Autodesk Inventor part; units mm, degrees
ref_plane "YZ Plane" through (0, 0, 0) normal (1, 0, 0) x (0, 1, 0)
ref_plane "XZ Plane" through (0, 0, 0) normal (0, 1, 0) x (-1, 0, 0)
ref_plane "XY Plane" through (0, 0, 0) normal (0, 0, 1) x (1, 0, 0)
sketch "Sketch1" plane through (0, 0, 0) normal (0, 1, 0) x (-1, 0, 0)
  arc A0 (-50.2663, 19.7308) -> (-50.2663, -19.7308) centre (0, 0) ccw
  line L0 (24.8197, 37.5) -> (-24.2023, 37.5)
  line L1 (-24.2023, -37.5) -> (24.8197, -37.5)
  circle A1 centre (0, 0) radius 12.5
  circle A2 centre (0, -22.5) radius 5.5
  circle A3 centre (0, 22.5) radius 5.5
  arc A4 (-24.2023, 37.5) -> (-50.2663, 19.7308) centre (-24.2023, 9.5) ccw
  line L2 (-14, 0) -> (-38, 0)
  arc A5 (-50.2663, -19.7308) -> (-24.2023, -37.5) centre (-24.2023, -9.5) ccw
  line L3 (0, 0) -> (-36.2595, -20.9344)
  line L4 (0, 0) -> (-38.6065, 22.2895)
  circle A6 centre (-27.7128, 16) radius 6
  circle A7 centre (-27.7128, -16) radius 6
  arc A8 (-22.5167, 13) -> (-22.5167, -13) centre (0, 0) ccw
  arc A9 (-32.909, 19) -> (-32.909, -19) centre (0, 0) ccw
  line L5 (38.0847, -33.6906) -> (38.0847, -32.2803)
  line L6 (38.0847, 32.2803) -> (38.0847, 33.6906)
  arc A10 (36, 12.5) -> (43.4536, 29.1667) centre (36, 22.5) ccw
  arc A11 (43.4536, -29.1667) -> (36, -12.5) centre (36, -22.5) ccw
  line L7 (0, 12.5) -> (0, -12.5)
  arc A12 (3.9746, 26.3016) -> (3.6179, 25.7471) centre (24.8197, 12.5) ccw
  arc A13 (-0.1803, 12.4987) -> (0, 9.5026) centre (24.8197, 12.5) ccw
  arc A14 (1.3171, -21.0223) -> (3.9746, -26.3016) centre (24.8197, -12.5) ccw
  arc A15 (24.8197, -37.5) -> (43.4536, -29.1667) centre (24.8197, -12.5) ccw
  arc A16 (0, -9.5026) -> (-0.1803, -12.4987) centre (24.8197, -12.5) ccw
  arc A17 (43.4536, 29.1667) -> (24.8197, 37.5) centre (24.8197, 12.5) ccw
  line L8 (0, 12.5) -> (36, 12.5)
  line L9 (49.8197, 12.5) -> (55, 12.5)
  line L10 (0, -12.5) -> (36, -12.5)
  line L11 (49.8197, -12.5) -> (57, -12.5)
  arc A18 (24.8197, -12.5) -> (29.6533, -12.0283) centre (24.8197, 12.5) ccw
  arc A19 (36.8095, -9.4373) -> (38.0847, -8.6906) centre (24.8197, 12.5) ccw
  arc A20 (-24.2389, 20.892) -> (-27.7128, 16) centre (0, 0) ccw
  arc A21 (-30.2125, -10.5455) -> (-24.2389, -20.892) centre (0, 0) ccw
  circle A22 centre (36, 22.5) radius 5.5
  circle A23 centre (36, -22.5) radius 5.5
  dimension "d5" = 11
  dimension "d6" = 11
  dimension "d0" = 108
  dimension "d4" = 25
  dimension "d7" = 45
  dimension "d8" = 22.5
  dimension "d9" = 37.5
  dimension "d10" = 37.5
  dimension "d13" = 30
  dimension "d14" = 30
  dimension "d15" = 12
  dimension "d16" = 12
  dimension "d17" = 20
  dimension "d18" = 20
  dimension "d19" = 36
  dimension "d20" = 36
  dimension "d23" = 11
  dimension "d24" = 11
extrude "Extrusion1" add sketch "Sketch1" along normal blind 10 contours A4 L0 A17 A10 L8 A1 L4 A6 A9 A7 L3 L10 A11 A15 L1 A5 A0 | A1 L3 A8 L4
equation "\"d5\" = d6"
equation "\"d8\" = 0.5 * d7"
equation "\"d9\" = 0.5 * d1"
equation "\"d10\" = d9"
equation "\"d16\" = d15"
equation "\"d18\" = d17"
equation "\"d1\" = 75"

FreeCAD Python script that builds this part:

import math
import FreeCAD as App
import Part
import Sketcher
Q = App.Units.Quantity

doc = App.newDocument("Part")
params = doc.addObject("Spreadsheet::Sheet", "Params")
for row, (alias, value) in enumerate([
    ("sketch1_diameter", "11 mm"),
    ("sketch1_radius", "54 mm"),
    ("sketch1_radius2", "25 mm"),
    ("sketch1_radius3", "10 mm"),
    ("sketch1_radius4", "6 mm"),
    ("pad1_length", "10 mm"),
], start=1):
    params.set(f"A{row}", alias)
    params.set(f"B{row}", "=" + value)
    params.setAlias(f"B{row}", alias)

body = doc.addObject("PartDesign::Body", "Body")

# Sketch on XZ plane
sketch1 = body.newObject("Sketcher::SketchObject", "Sketch")
sketch1.AttachmentSupport = (doc.getObject("XZ_Plane"), [""])
sketch1.MapMode = "FlatFace"
sketch1.addGeometry(Part.ArcOfCircle(Part.Circle(App.Vector(24.2023, 9.5, 0), App.Vector(0, 0, 1), 28), math.radians(21.431303), math.radians(90)), False)
sketch1.addGeometry(Part.ArcOfCircle(Part.Circle(App.Vector(0, 0, 0), App.Vector(0, 0, 1), 54.00005), math.radians(-21.431269), math.radians(21.431269)), False)
sketch1.addGeometry(Part.ArcOfCircle(Part.Circle(App.Vector(24.2023, -9.5, 0), App.Vector(0, 0, 1), 28.000024), math.radians(-90), math.radians(-21.431303)), False)
sketch1.addGeometry(Part.LineSegment(App.Vector(24.2023, -37.5, 0), App.Vector(-24.8197, -37.5, 0)), False)
sketch1.addGeometry(Part.ArcOfCircle(Part.Circle(App.Vector(-24.8197, -12.5, 0), App.Vector(0, 0, 1), 25.000038), math.radians(-138.189628), math.radians(-90)), False)
sketch1.addGeometry(Part.ArcOfCircle(Part.Circle(App.Vector(-36, -22.5, 0), App.Vector(0, 0, 1), 10.000052), math.radians(90), math.radians(221.810304)), False)
sketch1.addGeometry(Part.LineSegment(App.Vector(-36, -12.5, 0), App.Vector(0, -12.5, 0)), False)
sketch1.addGeometry(Part.ArcOfCircle(Part.Circle(App.Vector(0, 0, 0), App.Vector(0, 0, 1), 12.5), math.radians(-90), math.radians(90)), False)
sketch1.addGeometry(Part.LineSegment(App.Vector(0, 12.5, 0), App.Vector(-36, 12.5, 0)), False)
sketch1.addGeometry(Part.ArcOfCircle(Part.Circle(App.Vector(-36, 22.5, 0), App.Vector(0, 0, 1), 10), math.radians(138.189696), math.radians(270)), False)
sketch1.addGeometry(Part.ArcOfCircle(Part.Circle(App.Vector(-24.8197, 12.5, 0), App.Vector(0, 0, 1), 25), math.radians(90), math.radians(138.189628)), False)
sketch1.addGeometry(Part.LineSegment(App.Vector(-24.8197, 37.5, 0), App.Vector(24.2023, 37.5, 0)), False)
sketch1.addGeometry(Part.ArcOfCircle(Part.Circle(App.Vector(0, 0, 0), App.Vector(0, 0, 1), 26.000034), math.radians(-29.999956), math.radians(29.999956)), False)
sketch1.addGeometry(Part.ArcOfCircle(Part.Circle(App.Vector(27.7128, -16, 0), App.Vector(0, 0, 1), 6), math.radians(149.99975), math.radians(330.000227)), False)
sketch1.addGeometry(Part.ArcOfCircle(Part.Circle(App.Vector(0, 0, 0), App.Vector(0, 0, 1), 38.00003), math.radians(-29.999974), math.radians(29.999974)), False)
sketch1.addGeometry(Part.ArcOfCircle(Part.Circle(App.Vector(27.7128, 16, 0), App.Vector(0, 0, 1), 6), math.radians(29.999773), math.radians(210.00025)), False)
sketch1.addGeometry(Part.Circle(App.Vector(0, -22.5, 0), App.Vector(0, 0, 1), 5.5), False)
sketch1.addGeometry(Part.Circle(App.Vector(-36, -22.5, 0), App.Vector(0, 0, 1), 5.5), False)
sketch1.addGeometry(Part.Circle(App.Vector(0, 22.5, 0), App.Vector(0, 0, 1), 5.5), False)
sketch1.addGeometry(Part.Circle(App.Vector(-36, 22.5, 0), App.Vector(0, 0, 1), 5.5), False)
sketch1.addConstraint(Sketcher.Constraint("Tangent", 0, 1, 1, 2))
sketch1.addConstraint(Sketcher.Constraint("Tangent", 1, 1, 2, 2))
sketch1.addConstraint(Sketcher.Constraint("Tangent", 2, 1, 3, 1))
sketch1.addConstraint(Sketcher.Constraint("Tangent", 3, 2, 4, 2))
sketch1.addConstraint(Sketcher.Constraint("Tangent", 4, 1, 5, 2))
sketch1.addConstraint(Sketcher.Constraint("Tangent", 5, 1, 6, 1))
sketch1.addConstraint(Sketcher.Constraint("Tangent", 6, 2, 7, 1))
sketch1.addConstraint(Sketcher.Constraint("Tangent", 7, 2, 8, 1))
sketch1.addConstraint(Sketcher.Constraint("Tangent", 8, 2, 9, 2))
sketch1.addConstraint(Sketcher.Constraint("Tangent", 9, 1, 10, 2))
sketch1.addConstraint(Sketcher.Constraint("Tangent", 10, 1, 11, 1))
sketch1.addConstraint(Sketcher.Constraint("Tangent", 11, 2, 0, 2))
sketch1.addConstraint(Sketcher.Constraint("Tangent", 12, 1, 13, 1))
sketch1.addConstraint(Sketcher.Constraint("Tangent", 13, 2, 14, 1))
sketch1.addConstraint(Sketcher.Constraint("Tangent", 14, 2, 15, 1))
sketch1.addConstraint(Sketcher.Constraint("Tangent", 15, 2, 12, 2))
sketch1.addConstraint(Sketcher.Constraint("Horizontal", 3))
sketch1.addConstraint(Sketcher.Constraint("Horizontal", 6))
sketch1.addConstraint(Sketcher.Constraint("Horizontal", 8))
sketch1.addConstraint(Sketcher.Constraint("Horizontal", 11))
sketch1.addConstraint(Sketcher.Constraint("Coincident", 1, 3, -1, 1))
sketch1.addConstraint(Sketcher.Constraint("Coincident", 7, 3, -1, 1))
sketch1.addConstraint(Sketcher.Constraint("Coincident", 12, 3, -1, 1))
sketch1.addConstraint(Sketcher.Constraint("Coincident", 14, 3, -1, 1))
sketch1.addConstraint(Sketcher.Constraint("Coincident", 17, 3, 5, 3))
sketch1.addConstraint(Sketcher.Constraint("Coincident", 19, 3, 9, 3))
sketch1.addConstraint(Sketcher.Constraint("Equal", 0, 2))
sketch1.addConstraint(Sketcher.Constraint("Equal", 5, 9))
sketch1.addConstraint(Sketcher.Constraint("Equal", 4, 10))
sketch1.addConstraint(Sketcher.Constraint("Equal", 16, 17))
sketch1.addConstraint(Sketcher.Constraint("Equal", 17, 18))
sketch1.addConstraint(Sketcher.Constraint("Equal", 18, 19))
sketch1.addConstraint(Sketcher.Constraint("Symmetric", 16, 3, 18, 3, -1, 1))
sketch1.addConstraint(Sketcher.Constraint("Symmetric", 4, 3, 10, 3, -1))
sketch1.addConstraint(Sketcher.Constraint("PointOnObject", 16, 3, -2))
sketch1.addConstraint(Sketcher.Constraint("Horizontal", 5, 3, 16, 3))
sketch1.addConstraint(Sketcher.Constraint("Horizontal", 4, 3, 5, 1))
sketch1.addConstraint(Sketcher.Constraint("Vertical", 13, 3, 15, 3))
sketch1.addConstraint(Sketcher.Constraint("Diameter", 16, Q("11 mm")))
sketch1.addConstraint(Sketcher.Constraint("Radius", 1, Q("54 mm")))
sketch1.addConstraint(Sketcher.Constraint("Radius", 4, Q("25 mm")))
sketch1.addConstraint(Sketcher.Constraint("Radius", 5, Q("10 mm")))
sketch1.addConstraint(Sketcher.Constraint("Radius", 13, Q("6 mm")))
sketch1.addConstraint(Sketcher.Constraint("Radius", 7, Q("12.5 mm")))
sketch1.addConstraint(Sketcher.Constraint("DistanceX", 6, 1, 6, 2, Q("36 mm")))
sketch1.addConstraint(Sketcher.Constraint("Radius", 0, Q("28 mm")))
sketch1.addConstraint(Sketcher.Constraint("Radius", 12, Q("26 mm")))
sketch1.addConstraint(Sketcher.Constraint("DistanceY", 12, 1, 0, 3, Q("22.5 mm")))
sketch1.setExpression("Constraints[38]", "Params.sketch1_diameter")
sketch1.setExpression("Constraints[39]", "Params.sketch1_radius")
sketch1.setExpression("Constraints[40]", "Params.sketch1_radius2")
sketch1.setExpression("Constraints[41]", "Params.sketch1_radius3")
sketch1.setExpression("Constraints[42]", "Params.sketch1_radius4")
pad1 = body.newObject("PartDesign::Pad", "Pad")
pad1.Profile = sketch1
pad1.setExpression("Length", "Params.pad1_length")
pad1.Reversed = True

doc.recompute()
